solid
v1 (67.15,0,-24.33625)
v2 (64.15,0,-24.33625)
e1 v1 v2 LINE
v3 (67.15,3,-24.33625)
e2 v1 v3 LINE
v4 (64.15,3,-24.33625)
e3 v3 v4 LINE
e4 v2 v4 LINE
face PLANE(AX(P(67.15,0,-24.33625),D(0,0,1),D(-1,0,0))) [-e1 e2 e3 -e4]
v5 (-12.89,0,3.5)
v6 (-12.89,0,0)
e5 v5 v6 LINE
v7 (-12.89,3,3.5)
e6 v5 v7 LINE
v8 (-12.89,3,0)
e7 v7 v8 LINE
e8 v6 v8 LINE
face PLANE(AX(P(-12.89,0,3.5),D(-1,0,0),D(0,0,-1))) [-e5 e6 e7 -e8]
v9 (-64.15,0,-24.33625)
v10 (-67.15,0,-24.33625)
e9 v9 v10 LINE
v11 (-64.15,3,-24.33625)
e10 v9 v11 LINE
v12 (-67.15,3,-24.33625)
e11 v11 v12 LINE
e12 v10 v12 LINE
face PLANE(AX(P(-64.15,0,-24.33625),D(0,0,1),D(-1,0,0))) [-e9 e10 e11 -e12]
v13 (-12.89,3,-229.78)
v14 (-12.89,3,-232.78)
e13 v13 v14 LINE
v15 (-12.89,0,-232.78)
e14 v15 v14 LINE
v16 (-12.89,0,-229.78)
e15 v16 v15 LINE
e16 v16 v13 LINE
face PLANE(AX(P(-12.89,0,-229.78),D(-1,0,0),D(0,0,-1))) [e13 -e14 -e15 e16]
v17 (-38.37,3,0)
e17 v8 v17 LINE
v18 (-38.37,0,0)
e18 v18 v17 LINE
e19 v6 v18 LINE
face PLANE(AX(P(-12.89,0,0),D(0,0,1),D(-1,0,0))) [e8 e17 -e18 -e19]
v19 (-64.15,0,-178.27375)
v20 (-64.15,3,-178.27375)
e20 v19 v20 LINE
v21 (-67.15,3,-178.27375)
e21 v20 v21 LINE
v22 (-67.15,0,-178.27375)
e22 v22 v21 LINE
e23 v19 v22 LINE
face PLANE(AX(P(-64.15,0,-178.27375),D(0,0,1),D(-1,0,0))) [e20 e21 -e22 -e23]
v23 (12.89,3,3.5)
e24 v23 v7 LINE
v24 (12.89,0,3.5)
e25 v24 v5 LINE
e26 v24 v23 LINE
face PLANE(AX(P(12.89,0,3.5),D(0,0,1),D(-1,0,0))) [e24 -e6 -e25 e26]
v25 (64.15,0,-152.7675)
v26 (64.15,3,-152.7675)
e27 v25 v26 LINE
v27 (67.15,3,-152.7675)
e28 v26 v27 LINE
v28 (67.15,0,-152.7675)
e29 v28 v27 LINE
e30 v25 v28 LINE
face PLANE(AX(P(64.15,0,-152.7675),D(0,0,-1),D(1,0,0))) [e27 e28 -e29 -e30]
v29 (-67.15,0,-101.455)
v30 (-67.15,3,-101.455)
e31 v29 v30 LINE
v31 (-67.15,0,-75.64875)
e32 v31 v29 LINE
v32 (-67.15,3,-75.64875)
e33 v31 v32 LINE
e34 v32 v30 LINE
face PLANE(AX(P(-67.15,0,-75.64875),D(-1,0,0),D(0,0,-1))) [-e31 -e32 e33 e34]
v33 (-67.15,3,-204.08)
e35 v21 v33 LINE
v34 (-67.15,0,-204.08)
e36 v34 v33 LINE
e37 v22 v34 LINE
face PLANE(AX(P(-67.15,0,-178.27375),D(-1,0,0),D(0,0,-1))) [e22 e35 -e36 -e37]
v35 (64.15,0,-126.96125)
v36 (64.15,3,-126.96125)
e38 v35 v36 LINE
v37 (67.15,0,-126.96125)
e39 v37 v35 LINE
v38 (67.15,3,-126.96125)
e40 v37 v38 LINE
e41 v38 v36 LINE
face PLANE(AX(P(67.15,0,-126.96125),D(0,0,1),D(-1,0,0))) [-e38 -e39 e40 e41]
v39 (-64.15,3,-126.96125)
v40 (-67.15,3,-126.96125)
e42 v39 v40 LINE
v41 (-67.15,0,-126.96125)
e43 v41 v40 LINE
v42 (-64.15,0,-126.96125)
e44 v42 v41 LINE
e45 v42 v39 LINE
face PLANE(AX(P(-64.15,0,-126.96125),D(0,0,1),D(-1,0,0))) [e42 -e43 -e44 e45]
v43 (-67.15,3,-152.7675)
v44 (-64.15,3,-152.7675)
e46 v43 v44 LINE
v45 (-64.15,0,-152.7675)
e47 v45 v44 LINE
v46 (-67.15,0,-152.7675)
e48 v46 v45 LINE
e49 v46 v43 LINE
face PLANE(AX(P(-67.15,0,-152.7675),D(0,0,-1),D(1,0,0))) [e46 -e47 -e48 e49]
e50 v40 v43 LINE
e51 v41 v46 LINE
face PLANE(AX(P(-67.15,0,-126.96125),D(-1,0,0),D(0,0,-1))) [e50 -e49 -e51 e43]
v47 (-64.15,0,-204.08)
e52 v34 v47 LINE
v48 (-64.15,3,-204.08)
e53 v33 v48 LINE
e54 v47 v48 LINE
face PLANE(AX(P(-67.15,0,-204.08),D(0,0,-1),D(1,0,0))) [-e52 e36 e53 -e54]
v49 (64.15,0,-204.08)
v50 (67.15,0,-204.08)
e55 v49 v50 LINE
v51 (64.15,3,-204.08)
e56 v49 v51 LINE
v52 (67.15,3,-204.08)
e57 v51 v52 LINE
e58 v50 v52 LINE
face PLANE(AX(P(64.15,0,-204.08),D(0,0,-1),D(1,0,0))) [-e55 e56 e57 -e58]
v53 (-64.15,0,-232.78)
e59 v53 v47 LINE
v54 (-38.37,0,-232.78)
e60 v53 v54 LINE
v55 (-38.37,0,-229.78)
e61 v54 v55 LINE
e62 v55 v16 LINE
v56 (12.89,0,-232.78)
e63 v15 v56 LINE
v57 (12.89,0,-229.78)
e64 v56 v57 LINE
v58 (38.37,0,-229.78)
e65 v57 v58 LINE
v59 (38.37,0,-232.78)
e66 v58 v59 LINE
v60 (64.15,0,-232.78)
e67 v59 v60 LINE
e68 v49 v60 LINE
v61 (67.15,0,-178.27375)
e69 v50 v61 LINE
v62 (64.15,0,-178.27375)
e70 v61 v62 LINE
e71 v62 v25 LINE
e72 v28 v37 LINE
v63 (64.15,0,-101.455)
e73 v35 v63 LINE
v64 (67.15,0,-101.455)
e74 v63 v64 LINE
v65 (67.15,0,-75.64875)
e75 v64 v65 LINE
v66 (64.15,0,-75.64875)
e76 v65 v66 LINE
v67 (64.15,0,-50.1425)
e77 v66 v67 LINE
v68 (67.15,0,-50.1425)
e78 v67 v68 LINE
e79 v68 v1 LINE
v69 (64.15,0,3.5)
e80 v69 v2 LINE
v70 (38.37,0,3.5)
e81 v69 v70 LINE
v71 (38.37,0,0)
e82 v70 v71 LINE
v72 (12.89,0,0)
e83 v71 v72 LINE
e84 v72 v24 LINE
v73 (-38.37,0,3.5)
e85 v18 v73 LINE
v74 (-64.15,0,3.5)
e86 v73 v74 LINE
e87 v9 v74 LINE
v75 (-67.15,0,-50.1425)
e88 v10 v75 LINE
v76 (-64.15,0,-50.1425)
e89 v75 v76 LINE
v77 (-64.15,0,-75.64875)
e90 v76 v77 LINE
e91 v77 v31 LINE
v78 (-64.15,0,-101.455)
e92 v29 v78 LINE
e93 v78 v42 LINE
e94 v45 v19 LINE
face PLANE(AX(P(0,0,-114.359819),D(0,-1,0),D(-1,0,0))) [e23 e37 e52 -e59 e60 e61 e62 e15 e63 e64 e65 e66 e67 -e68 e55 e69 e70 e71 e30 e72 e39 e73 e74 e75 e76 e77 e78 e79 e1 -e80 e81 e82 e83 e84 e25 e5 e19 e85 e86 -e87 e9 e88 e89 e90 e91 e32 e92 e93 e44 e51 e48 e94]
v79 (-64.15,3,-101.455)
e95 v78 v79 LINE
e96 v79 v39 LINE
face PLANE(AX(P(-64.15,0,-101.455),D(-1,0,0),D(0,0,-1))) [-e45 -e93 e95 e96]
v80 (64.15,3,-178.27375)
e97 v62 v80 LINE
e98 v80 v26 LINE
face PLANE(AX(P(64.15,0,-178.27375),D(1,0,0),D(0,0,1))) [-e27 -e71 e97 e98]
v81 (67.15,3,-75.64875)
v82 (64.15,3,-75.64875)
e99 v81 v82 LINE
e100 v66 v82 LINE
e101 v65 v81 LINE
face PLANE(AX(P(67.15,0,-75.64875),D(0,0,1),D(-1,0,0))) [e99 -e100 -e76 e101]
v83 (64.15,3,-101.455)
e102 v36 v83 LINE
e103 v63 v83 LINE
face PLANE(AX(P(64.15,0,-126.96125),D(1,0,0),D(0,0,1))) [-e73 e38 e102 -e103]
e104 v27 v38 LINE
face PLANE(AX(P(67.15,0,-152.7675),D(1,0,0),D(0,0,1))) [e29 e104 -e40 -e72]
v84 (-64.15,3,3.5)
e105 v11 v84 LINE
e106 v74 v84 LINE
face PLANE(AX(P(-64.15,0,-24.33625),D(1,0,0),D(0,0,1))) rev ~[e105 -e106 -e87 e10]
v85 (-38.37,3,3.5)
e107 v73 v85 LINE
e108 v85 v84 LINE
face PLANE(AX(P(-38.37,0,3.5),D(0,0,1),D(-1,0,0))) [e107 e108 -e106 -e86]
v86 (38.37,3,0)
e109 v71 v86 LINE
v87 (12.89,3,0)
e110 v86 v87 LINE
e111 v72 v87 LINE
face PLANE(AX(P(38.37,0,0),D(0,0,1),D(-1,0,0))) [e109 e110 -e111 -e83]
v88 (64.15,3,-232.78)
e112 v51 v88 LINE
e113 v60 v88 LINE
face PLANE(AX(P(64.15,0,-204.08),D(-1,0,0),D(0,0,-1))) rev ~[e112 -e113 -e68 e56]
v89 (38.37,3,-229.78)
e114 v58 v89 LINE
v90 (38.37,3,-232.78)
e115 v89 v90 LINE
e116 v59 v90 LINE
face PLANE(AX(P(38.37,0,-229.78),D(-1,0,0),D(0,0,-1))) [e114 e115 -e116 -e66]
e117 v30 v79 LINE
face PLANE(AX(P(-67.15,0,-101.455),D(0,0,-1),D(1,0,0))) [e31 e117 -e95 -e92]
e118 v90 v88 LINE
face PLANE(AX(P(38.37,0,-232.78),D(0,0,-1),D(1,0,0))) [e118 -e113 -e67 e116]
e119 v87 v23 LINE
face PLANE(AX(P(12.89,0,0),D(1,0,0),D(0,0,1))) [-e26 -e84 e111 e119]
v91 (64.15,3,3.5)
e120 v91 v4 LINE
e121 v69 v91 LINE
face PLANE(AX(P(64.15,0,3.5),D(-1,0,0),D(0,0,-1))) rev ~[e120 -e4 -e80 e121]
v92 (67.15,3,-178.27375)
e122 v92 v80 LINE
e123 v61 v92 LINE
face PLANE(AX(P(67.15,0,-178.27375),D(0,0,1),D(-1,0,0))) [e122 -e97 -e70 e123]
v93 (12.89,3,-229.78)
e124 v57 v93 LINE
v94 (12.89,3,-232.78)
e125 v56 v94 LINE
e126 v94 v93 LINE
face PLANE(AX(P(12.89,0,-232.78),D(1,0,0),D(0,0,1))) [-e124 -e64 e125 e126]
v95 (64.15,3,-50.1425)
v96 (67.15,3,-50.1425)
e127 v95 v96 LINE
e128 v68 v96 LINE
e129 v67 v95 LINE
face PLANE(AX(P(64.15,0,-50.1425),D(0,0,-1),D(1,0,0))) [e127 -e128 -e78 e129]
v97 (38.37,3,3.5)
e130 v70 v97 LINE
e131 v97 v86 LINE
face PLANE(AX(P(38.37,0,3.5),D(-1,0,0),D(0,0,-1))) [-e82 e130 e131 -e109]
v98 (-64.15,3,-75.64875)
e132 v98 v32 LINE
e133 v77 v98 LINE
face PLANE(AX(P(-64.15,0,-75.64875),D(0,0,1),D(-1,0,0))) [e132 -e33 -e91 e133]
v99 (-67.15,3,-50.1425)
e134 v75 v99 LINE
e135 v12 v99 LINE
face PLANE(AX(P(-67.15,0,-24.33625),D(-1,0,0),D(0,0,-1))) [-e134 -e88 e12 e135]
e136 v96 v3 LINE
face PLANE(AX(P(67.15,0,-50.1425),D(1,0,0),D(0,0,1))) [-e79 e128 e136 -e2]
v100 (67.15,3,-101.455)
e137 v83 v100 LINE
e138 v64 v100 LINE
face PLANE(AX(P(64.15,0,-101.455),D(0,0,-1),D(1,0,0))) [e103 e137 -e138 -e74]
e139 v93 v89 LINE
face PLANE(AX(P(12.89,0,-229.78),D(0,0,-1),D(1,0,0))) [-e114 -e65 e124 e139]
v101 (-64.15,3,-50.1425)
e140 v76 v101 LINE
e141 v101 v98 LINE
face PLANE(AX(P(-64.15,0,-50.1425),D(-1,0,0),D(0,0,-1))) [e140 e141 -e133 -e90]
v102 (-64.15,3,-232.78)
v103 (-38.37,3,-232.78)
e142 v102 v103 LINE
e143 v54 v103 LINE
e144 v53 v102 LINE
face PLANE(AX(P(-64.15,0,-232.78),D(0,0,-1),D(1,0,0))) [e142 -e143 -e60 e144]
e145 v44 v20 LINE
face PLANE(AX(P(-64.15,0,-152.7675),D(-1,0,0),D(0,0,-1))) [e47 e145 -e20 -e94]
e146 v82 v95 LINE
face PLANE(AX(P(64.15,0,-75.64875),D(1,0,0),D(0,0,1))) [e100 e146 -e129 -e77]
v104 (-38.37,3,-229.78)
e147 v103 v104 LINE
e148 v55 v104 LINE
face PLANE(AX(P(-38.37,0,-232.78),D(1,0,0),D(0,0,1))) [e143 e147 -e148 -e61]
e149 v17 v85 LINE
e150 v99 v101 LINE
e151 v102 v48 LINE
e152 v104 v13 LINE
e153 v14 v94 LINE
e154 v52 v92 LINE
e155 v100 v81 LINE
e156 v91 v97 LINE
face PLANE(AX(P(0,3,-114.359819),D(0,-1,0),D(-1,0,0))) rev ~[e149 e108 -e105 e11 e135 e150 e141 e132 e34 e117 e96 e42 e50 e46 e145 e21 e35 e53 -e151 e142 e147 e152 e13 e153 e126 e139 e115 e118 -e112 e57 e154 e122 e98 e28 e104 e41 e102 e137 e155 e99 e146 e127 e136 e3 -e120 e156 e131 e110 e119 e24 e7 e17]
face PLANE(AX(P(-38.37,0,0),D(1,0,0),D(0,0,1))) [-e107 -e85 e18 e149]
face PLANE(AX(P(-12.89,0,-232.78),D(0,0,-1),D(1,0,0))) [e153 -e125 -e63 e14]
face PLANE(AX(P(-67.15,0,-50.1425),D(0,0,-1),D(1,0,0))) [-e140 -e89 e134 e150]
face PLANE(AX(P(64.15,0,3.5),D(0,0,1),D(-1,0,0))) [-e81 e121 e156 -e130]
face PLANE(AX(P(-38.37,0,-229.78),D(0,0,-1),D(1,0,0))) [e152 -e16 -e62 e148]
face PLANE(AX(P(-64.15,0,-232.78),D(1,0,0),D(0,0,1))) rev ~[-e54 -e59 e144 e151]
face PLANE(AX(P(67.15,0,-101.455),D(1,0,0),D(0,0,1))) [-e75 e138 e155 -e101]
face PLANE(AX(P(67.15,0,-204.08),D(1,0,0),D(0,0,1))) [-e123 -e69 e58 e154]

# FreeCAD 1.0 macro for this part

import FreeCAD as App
import Part
import Sketcher

V = App.Vector
Q = App.Units.Quantity


def add_polygon(sketch, points):
    """Adds a closed chain of lines whose ends are joined by coincident constraints."""
    first, n = sketch.GeometryCount, len(points)
    for a, b in zip(points, points[1:] + points[:1]):
        sketch.addGeometry(Part.LineSegment(App.Vector(*a, 0), App.Vector(*b, 0)), False)
    for i in range(n):
        sketch.addConstraint(Sketcher.Constraint("Coincident", first + i, 2, first + (i + 1) % n, 1))

doc = App.newDocument("Part")
body = doc.addObject("PartDesign::Body", "Body")

# Sketch on XZ plane
sketch1 = body.newObject("Sketcher::SketchObject", "Sketch")
sketch1.AttachmentSupport = (doc.getObject("XZ_Plane"), [""])
sketch1.MapMode = "FlatFace"
add_polygon(sketch1, [(-64.2, -232.8), (-64.2, -204.1), (-67.2, -204.1), (-67.2, -178.3), (-64.2, -178.3), (-64.2, -152.8), (-67.2, -152.8), (-67.2, -127), (-64.2, -127), (-64.2, -101.5), (-67.2, -101.5), (-67.2, -75.6), (-64.2, -75.6), (-64.2, -50.1), (-67.2, -50.1), (-67.2, -24.3), (-64.2, -24.3), (-64.2, 3.5), (-38.4, 3.5), (-38.4, 0), (-12.9, 0), (-12.9, 3.5), (12.9, 3.5), (12.9, 0), (38.4, 0), (38.4, 3.5), (64.2, 3.5), (64.2, -24.3), (67.2, -24.3), (67.2, -50.1), (64.2, -50.1), (64.2, -75.6), (67.2, -75.6), (67.2, -101.5), (64.2, -101.5), (64.2, -127), (67.2, -127), (67.2, -152.8), (64.2, -152.8), (64.2, -178.3), (67.2, -178.3), (67.2, -204.1), (64.2, -204.1), (64.2, -232.8), (38.4, -232.8), (38.4, -229.8), (12.9, -229.8), (12.9, -232.8), (-12.9, -232.8), (-12.9, -229.8), (-38.4, -229.8), (-38.4, -232.8)])  # lines 0-51
sketch1.addConstraint([
    Sketcher.Constraint("Vertical", 0),
    Sketcher.Constraint("Horizontal", 1),
    Sketcher.Constraint("Vertical", 2),
    Sketcher.Constraint("Horizontal", 3),
    Sketcher.Constraint("Vertical", 4),
    Sketcher.Constraint("Horizontal", 5),
    Sketcher.Constraint("Vertical", 6),
    Sketcher.Constraint("Horizontal", 7),
    Sketcher.Constraint("Vertical", 8),
    Sketcher.Constraint("Horizontal", 9),
    Sketcher.Constraint("Vertical", 10),
    Sketcher.Constraint("Horizontal", 11),
    Sketcher.Constraint("Vertical", 12),
    Sketcher.Constraint("Horizontal", 13),
    Sketcher.Constraint("Vertical", 14),
    Sketcher.Constraint("Horizontal", 15),
    Sketcher.Constraint("Vertical", 16),
    Sketcher.Constraint("Horizontal", 17),
    Sketcher.Constraint("Vertical", 18),
    Sketcher.Constraint("Horizontal", 19),
    Sketcher.Constraint("Vertical", 20),
    Sketcher.Constraint("Horizontal", 21),
    Sketcher.Constraint("Vertical", 22),
    Sketcher.Constraint("Horizontal", 23),
    Sketcher.Constraint("Vertical", 24),
    Sketcher.Constraint("Horizontal", 25),
    Sketcher.Constraint("Vertical", 26),
    Sketcher.Constraint("Horizontal", 27),
    Sketcher.Constraint("Vertical", 28),
    Sketcher.Constraint("Horizontal", 29),
    Sketcher.Constraint("Vertical", 30),
    Sketcher.Constraint("Horizontal", 31),
    Sketcher.Constraint("Vertical", 32),
    Sketcher.Constraint("Horizontal", 33),
    Sketcher.Constraint("Vertical", 34),
    Sketcher.Constraint("Horizontal", 35),
    Sketcher.Constraint("Vertical", 36),
    Sketcher.Constraint("Horizontal", 37),
    Sketcher.Constraint("Vertical", 38),
    Sketcher.Constraint("Horizontal", 39),
    Sketcher.Constraint("Vertical", 40),
    Sketcher.Constraint("Horizontal", 41),
    Sketcher.Constraint("Vertical", 42),
    Sketcher.Constraint("Horizontal", 43),
    Sketcher.Constraint("Vertical", 44),
    Sketcher.Constraint("Horizontal", 45),
    Sketcher.Constraint("Vertical", 46),
    Sketcher.Constraint("Horizontal", 47),
    Sketcher.Constraint("Vertical", 48),
    Sketcher.Constraint("Horizontal", 49),
    Sketcher.Constraint("Vertical", 50),
    Sketcher.Constraint("Horizontal", 51),
    Sketcher.Constraint("Symmetric", 19, 2, 22, 2, -1, 1),
    Sketcher.Constraint("Symmetric", 18, 2, 23, 2, -2),
    Sketcher.Constraint("Symmetric", 16, 2, 25, 2, -2),
    Sketcher.Constraint("Symmetric", 14, 2, 27, 2, -2),
    Sketcher.Constraint("Symmetric", 12, 2, 29, 2, -2),
    Sketcher.Constraint("Symmetric", 10, 2, 31, 2, -2),
    Sketcher.Constraint("Symmetric", 8, 2, 33, 2, -2),
    Sketcher.Constraint("Symmetric", 6, 2, 35, 2, -2),
    Sketcher.Constraint("Symmetric", 4, 2, 37, 2, -2),
    Sketcher.Constraint("Symmetric", 2, 2, 39, 2, -2),
    Sketcher.Constraint("Symmetric", 0, 2, 41, 2, -2),
    Sketcher.Constraint("Symmetric", 45, 2, 48, 2, -2),
    Sketcher.Constraint("Symmetric", 43, 2, 50, 2, -2),
    Sketcher.Constraint("Horizontal", 17, 2, 20, 2),
    Sketcher.Constraint("Horizontal", 43, 2, 46, 2),
    Sketcher.Constraint("Vertical", 0, 2, 3, 2),
    Sketcher.Constraint("Vertical", 2, 2, 5, 2),
    Sketcher.Constraint("Vertical", 4, 2, 7, 2),
    Sketcher.Constraint("Vertical", 6, 2, 9, 2),
    Sketcher.Constraint("Vertical", 8, 2, 11, 2),
    Sketcher.Constraint("Vertical", 10, 2, 13, 2),
    Sketcher.Constraint("Vertical", 12, 2, 15, 2),
    Sketcher.Constraint("Vertical", 24, 2, 43, 2),
    Sketcher.Constraint("Vertical", 22, 2, 45, 2),
    Sketcher.Constraint("Equal", 17, 21),
    Sketcher.Constraint("Equal", 2, 6),
    Sketcher.Constraint("Equal", 4, 8),
    Sketcher.Constraint("Equal", 6, 10),
    Sketcher.Constraint("Equal", 8, 12),
    Sketcher.Constraint("Equal", 10, 14),
    Sketcher.Constraint("Equal", 41, 44),
    Sketcher.Constraint("DistanceX", 1, 2, 1, 1, Q("3 mm")),
    Sketcher.Constraint("DistanceY", 0, 1, 0, 2, Q("28.7 mm")),
    Sketcher.Constraint("DistanceY", 18, 2, 18, 1, Q("3.5 mm")),
    Sketcher.Constraint("DistanceX", 17, 1, 17, 2, Q("25.78 mm")),
    Sketcher.Constraint("DistanceX", 19, 1, 19, 2, Q("25.48 mm")),
    Sketcher.Constraint("DistanceY", 0, 2, -1, 1, Q("204.08 mm")),
    Sketcher.Constraint("DistanceY", 8, 2, -1, 1, Q("101.455 mm")),
    Sketcher.Constraint("DistanceY", 2, 1, 2, 2, Q("25.80625 mm")),
])
pad1 = body.newObject("PartDesign::Pad", "Pad")
pad1.Profile = sketch1
pad1.Length = 3
pad1.Reversed = True

doc.recompute()
